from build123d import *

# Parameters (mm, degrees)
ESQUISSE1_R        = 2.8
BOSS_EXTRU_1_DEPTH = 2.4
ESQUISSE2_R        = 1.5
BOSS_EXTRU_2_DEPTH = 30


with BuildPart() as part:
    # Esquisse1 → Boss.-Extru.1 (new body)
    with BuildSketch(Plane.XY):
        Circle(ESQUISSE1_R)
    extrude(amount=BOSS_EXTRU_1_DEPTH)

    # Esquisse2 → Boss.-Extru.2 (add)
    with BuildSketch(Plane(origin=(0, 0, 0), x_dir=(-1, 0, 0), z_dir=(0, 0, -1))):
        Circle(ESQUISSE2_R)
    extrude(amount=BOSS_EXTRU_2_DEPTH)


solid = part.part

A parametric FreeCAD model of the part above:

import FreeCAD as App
import Part
import Sketcher

doc = App.newDocument("Part")
body = doc.addObject("PartDesign::Body", "Body")

# Sketch on XY plane
sketch1 = body.newObject("Sketcher::SketchObject", "Sketch")
sketch1.AttachmentSupport = (doc.getObject("XY_Plane"), [""])
sketch1.MapMode = "FlatFace"
sketch1.addGeometry(Part.Circle(App.Vector(0, 0, 0), App.Vector(0, 0, 1), 2.8), False)
sketch1.addConstraint([
    Sketcher.Constraint("Coincident", 0, 3, -1, 1),
    Sketcher.Constraint("Diameter", 0, 5.6),
])
pad1 = body.newObject("PartDesign::Pad", "Pad")
pad1.Profile = sketch1
pad1.Length = 2.4

# Sketch on XY plane
sketch2 = body.newObject("Sketcher::SketchObject", "Sketch001")
sketch2.AttachmentSupport = (doc.getObject("XY_Plane"), [""])
sketch2.MapMode = "FlatFace"
sketch2.addGeometry(Part.Circle(App.Vector(0, 0, 0), App.Vector(0, 0, 1), 1.5), False)
sketch2.addConstraint([
    Sketcher.Constraint("Coincident", 0, 3, -1, 1),
    Sketcher.Constraint("Diameter", 0, 3.0),
])
pad2 = body.newObject("PartDesign::Pad", "Pad001")
pad2.Profile = sketch2
pad2.Length = 30
pad2.Reversed = True

doc.recompute()
